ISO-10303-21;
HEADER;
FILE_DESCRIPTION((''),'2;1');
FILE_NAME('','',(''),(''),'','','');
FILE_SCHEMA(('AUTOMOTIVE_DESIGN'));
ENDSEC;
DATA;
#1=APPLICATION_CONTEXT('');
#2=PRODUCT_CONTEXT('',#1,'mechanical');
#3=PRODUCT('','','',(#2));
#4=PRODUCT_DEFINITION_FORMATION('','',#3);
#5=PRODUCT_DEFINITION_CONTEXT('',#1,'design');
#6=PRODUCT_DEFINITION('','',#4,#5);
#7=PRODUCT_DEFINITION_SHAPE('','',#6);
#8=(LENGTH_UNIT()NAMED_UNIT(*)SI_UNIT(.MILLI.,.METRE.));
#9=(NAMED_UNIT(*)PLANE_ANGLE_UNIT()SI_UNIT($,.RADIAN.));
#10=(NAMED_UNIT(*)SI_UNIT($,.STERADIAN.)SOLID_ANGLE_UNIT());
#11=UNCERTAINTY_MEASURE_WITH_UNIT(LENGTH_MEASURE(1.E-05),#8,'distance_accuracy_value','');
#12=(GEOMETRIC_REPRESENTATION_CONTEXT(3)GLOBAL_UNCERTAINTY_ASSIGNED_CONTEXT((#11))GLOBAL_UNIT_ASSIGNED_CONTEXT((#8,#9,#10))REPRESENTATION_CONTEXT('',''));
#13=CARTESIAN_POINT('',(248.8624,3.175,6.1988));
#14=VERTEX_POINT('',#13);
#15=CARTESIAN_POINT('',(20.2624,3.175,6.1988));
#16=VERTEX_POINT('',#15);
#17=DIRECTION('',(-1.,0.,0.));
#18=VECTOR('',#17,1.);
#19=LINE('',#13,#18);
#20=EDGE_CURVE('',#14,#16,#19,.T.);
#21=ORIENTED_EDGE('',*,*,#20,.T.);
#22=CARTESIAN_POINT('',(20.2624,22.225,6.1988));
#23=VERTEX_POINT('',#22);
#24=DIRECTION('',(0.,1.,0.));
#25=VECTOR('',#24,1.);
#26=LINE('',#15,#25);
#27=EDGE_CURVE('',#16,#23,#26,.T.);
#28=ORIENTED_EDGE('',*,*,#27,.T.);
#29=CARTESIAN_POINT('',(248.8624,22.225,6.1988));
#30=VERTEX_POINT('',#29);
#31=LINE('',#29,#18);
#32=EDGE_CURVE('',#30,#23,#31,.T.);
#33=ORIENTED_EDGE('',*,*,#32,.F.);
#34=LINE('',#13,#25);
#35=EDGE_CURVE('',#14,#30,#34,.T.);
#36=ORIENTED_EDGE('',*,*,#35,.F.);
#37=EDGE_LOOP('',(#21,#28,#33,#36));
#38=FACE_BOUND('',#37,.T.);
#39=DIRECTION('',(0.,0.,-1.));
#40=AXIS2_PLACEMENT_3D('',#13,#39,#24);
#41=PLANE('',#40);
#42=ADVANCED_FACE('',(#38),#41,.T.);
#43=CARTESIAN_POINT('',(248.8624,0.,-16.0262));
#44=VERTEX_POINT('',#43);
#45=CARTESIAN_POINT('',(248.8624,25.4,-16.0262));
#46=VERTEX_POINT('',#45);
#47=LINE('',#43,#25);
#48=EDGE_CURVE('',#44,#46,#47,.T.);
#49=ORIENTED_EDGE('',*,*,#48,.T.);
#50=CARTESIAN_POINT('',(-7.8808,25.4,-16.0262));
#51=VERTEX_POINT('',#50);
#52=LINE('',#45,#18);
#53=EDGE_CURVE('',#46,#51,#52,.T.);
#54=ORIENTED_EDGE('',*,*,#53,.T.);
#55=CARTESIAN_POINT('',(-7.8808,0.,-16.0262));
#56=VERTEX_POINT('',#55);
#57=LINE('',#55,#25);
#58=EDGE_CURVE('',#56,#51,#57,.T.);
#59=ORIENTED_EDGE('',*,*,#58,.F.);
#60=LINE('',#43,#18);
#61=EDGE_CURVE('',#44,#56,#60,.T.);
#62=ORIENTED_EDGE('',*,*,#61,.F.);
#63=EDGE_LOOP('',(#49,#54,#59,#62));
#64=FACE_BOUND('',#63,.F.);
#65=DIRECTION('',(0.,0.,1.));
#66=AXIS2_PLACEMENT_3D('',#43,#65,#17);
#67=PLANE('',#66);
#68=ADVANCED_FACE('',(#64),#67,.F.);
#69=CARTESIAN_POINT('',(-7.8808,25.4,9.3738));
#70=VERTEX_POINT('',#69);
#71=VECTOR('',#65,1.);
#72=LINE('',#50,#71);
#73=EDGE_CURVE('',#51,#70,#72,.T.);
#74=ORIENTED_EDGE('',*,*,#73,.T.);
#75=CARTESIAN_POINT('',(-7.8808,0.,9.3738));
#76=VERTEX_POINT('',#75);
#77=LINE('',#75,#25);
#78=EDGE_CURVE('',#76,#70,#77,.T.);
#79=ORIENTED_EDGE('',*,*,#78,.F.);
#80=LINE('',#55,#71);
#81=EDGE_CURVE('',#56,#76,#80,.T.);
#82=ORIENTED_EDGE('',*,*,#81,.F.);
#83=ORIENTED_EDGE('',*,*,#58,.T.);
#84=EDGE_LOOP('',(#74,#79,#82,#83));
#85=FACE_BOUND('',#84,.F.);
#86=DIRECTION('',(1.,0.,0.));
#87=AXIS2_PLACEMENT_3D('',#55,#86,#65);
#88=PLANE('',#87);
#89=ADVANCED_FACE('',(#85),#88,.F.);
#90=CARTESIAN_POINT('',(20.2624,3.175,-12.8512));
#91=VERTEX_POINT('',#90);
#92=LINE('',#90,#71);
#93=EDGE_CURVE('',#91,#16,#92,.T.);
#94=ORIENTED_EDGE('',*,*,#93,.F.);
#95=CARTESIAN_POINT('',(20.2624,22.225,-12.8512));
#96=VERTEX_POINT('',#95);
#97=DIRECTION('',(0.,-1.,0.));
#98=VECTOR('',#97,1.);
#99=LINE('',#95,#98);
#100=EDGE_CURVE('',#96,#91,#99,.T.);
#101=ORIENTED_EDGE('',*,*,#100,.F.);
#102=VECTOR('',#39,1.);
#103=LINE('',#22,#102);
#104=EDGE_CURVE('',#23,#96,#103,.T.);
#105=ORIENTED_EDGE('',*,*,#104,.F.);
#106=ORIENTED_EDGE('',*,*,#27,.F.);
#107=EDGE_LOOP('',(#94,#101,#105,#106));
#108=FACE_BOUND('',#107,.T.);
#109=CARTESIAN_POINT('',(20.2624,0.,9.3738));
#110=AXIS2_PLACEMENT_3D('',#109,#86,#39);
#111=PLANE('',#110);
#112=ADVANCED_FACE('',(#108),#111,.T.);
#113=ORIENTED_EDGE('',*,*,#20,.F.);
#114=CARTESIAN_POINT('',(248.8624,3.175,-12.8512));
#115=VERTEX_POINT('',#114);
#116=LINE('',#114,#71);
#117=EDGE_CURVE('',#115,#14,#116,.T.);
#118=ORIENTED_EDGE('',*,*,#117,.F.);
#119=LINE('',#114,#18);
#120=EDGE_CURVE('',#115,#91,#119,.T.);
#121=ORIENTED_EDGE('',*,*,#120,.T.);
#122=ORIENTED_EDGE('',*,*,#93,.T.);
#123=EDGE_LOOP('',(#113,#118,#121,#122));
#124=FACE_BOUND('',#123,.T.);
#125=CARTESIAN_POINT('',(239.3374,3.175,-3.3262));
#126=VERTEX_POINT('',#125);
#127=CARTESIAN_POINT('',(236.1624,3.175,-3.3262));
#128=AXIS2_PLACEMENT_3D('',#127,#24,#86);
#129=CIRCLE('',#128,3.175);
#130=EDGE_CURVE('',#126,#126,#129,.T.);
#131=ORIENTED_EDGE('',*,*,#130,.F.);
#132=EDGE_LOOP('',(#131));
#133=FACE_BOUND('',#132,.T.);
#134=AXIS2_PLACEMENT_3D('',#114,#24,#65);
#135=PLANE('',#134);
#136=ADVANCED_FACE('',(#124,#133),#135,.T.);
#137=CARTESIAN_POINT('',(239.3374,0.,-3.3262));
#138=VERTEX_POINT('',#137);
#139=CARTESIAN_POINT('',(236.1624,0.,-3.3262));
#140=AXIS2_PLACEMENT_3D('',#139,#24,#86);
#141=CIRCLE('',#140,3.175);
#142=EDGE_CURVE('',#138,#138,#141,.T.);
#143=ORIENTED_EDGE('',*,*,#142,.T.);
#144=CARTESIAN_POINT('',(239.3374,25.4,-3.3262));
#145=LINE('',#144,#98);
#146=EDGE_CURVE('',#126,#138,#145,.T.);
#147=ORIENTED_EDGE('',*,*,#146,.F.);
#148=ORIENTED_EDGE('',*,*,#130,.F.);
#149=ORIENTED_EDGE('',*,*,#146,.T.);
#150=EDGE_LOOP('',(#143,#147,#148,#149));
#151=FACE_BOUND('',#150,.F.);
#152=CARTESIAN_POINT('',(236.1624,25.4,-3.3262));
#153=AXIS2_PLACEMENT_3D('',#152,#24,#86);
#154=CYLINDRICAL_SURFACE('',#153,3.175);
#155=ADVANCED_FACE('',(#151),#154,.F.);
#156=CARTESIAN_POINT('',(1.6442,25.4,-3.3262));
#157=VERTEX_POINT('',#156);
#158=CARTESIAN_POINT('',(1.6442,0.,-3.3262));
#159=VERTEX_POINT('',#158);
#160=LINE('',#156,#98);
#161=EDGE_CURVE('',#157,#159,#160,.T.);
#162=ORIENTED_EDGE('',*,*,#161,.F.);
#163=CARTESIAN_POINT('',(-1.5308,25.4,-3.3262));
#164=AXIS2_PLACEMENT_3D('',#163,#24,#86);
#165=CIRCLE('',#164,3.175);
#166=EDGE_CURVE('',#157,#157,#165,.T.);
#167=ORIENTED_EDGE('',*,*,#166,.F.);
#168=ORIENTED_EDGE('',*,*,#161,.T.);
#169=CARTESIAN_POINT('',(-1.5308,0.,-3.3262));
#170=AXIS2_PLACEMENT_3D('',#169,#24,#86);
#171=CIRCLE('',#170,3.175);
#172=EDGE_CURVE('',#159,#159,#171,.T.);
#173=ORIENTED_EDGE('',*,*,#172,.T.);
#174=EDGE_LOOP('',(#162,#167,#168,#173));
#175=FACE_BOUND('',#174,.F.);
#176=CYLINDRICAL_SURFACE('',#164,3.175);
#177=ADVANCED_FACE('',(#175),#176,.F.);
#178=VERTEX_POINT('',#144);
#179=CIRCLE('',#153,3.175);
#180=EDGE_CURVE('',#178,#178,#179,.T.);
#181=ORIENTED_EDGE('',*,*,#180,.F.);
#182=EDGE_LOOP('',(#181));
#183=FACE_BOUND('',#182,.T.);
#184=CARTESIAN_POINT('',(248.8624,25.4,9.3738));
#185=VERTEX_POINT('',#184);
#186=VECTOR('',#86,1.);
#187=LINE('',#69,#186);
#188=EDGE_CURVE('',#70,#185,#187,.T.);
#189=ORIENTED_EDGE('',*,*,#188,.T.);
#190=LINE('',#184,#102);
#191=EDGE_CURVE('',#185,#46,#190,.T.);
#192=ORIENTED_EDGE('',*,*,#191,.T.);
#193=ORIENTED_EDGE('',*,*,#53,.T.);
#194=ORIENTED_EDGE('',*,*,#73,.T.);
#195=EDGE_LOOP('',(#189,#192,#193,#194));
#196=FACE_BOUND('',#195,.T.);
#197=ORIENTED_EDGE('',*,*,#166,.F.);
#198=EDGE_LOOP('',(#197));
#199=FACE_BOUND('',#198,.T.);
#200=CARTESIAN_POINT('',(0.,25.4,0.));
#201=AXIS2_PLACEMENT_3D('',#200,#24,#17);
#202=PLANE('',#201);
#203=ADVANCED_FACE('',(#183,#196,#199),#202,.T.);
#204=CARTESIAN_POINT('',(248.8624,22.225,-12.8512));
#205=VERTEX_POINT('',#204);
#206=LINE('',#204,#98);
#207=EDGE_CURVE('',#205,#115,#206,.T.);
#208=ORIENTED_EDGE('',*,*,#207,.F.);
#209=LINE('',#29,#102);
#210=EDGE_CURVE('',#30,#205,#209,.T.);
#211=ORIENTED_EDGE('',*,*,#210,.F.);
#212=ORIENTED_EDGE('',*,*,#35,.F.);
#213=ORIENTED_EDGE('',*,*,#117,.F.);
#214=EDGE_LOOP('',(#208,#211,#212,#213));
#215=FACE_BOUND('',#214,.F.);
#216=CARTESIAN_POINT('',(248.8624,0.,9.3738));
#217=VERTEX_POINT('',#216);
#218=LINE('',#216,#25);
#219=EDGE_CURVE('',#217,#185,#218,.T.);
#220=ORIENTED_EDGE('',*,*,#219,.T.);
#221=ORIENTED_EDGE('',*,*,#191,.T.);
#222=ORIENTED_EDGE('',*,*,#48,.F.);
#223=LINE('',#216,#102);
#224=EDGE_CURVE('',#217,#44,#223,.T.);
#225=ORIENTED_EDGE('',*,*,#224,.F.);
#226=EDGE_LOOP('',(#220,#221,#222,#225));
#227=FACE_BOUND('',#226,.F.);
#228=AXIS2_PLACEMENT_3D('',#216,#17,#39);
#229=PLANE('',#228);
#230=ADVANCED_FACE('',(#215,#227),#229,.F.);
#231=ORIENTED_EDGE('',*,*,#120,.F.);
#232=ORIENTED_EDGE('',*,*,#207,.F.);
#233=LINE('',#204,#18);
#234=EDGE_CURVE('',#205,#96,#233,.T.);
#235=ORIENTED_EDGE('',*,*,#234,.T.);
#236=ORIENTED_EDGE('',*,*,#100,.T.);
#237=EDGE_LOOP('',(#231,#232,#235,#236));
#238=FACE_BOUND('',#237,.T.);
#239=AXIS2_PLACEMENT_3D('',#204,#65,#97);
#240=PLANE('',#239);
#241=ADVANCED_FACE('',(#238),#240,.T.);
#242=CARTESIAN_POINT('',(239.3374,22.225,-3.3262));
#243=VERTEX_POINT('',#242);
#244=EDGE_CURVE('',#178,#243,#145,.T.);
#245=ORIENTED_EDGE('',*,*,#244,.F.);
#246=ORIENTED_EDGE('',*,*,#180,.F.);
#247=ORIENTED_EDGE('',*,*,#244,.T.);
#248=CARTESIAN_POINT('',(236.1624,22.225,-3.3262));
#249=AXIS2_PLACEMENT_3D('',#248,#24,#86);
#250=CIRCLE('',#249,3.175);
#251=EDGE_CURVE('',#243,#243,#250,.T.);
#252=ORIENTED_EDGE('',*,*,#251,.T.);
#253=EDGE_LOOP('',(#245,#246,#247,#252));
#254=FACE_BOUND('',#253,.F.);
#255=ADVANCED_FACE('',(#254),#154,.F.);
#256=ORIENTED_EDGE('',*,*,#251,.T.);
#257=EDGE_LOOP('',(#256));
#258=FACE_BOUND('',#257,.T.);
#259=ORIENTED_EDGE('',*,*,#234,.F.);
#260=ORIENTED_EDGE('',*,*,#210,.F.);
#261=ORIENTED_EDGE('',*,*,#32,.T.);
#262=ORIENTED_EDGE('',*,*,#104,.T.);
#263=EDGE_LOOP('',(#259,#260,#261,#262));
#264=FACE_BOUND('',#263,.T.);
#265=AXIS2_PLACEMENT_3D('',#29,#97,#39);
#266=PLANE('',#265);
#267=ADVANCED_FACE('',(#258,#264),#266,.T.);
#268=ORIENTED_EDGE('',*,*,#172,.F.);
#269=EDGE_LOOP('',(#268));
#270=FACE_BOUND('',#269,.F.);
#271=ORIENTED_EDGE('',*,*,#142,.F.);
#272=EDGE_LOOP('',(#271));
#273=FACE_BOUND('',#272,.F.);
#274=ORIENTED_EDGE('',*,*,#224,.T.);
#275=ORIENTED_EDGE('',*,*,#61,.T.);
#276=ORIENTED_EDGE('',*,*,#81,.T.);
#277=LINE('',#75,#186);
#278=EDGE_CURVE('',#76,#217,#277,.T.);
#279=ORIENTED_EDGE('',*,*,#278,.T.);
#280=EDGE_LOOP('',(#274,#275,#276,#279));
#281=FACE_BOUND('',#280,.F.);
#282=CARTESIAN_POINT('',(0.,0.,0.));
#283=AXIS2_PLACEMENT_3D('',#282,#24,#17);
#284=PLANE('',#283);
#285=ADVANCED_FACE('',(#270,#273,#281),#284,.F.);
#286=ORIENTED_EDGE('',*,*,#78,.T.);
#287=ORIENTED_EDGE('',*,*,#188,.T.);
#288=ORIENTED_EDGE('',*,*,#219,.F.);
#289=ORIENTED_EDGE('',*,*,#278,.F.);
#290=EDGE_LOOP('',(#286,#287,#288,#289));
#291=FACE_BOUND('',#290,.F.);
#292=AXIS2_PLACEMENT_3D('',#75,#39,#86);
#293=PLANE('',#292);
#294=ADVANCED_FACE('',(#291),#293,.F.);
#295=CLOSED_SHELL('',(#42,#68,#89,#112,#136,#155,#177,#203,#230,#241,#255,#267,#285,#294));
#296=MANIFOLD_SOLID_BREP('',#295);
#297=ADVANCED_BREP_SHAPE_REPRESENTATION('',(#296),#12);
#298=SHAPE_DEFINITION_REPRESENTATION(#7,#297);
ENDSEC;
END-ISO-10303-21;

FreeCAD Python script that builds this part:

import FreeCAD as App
import Part
import Sketcher
Q = App.Units.Quantity


def add_polygon(sketch, points):
    """Adds a closed chain of lines whose ends are joined by coincident constraints."""
    first, n = sketch.GeometryCount, len(points)
    for a, b in zip(points, points[1:] + points[:1]):
        sketch.addGeometry(Part.LineSegment(App.Vector(*a, 0), App.Vector(*b, 0)), False)
    for i in range(n):
        sketch.addConstraint(Sketcher.Constraint("Coincident", first + i, 2, first + (i + 1) % n, 1))

doc = App.newDocument("Part")
params = doc.addObject("Spreadsheet::Sheet", "Params")
for row, (alias, value) in enumerate([
    ("sketch1_height", "1 in"),
    ("sketch1_width", "10.108 in"),
    ("pad1_length", "1 in"),
    ("sketch2_diameter", "0.25 in"),
    ("pocket1_length", "1 in"),
    ("sketch3_width", "0.75 in"),
    ("pocket2_length", "9 in"),
], start=1):
    params.set(f"A{row}", alias)
    params.set(f"B{row}", "=" + value)
    params.setAlias(f"B{row}", alias)

body = doc.addObject("PartDesign::Body", "Body")

sketch1 = body.newObject("Sketcher::SketchObject", "Sketch")
sketch1.AttachmentSupport = (doc.getObject("XZ_Plane"), [""])
sketch1.MapMode = "FlatFace"
add_polygon(sketch1, [(-8, -16), (-8, 9), (249, 9), (249, -16)])
sketch1.addConstraint([
    Sketcher.Constraint("Vertical", 0),
    Sketcher.Constraint("Horizontal", 1),
    Sketcher.Constraint("Vertical", 2),
    Sketcher.Constraint("Horizontal", 3),
    Sketcher.Constraint("DistanceY", 0, 1, 0, 2, Q("1 in")),
    Sketcher.Constraint("DistanceX", 1, 1, 1, 2, Q("10.108 in")),
    Sketcher.Constraint("DistanceX", 0, 2, -1, 1, Q("7.8808 mm")),
    Sketcher.Constraint("DistanceY", -1, 1, 0, 2, Q("9.3738 mm")),
])
sketch1.setExpression("Constraints[8]", "Params.sketch1_height")
sketch1.setExpression("Constraints[9]", "Params.sketch1_width")
pad1 = body.newObject("PartDesign::Pad", "Pad")
pad1.Profile = sketch1
pad1.setExpression("Length", "Params.pad1_length")
pad1.Reversed = True

sketch2 = body.newObject("Sketcher::SketchObject", "Sketch001")
sketch2.AttachmentSupport = (doc.getObject("XZ_Plane"), [""])
sketch2.MapMode = "FlatFace"
sketch2.AttachmentOffset = App.Placement(App.Vector(0, 0, -1 * 25.4), App.Rotation())
sketch2.addGeometry([
    Part.Circle(App.Vector(-1.5, -3.3, 0), App.Vector(0, 0, 1), 3.2),
    Part.Circle(App.Vector(236.2, -3.3, 0), App.Vector(0, 0, 1), 3.2),
], False)
sketch2.addConstraint([
    Sketcher.Constraint("Equal", 0, 1),
    Sketcher.Constraint("Horizontal", 0, 3, 1, 3),
    Sketcher.Constraint("Diameter", 0, Q("0.25 in")),
    Sketcher.Constraint("DistanceX", 0, 3, 1, 3, Q("9.358 in")),
    Sketcher.Constraint("DistanceX", 0, 3, -1, 1, Q("1.5308 mm")),
    Sketcher.Constraint("DistanceY", 0, 3, -1, 1, Q("3.3262 mm")),
])
sketch2.setExpression("Constraints[2]", "Params.sketch2_diameter")
pocket1 = body.newObject("PartDesign::Pocket", "Pocket")
pocket1.Profile = sketch2
pocket1.setExpression("Length", "Params.pocket1_length")
pocket1.Reversed = True

sketch3 = body.newObject("Sketcher::SketchObject", "Sketch002")
sketch3.AttachmentSupport = (doc.getObject("YZ_Plane"), [""])
sketch3.MapMode = "FlatFace"
sketch3.AttachmentOffset = App.Placement(App.Vector(0, 0, 248.8624), App.Rotation())
add_polygon(sketch3, [(22, -13), (22, 6), (3, 6), (3, -13)])
sketch3.addConstraint([
    Sketcher.Constraint("Vertical", 0),
    Sketcher.Constraint("Horizontal", 1),
    Sketcher.Constraint("Vertical", 2),
    Sketcher.Constraint("Horizontal", 3),
    Sketcher.Constraint("Equal", 3, 0),
    Sketcher.Constraint("DistanceX", -1, 1, 1, 2, Q("0.125 in")),
    Sketcher.Constraint("DistanceX", 1, 2, 1, 1, Q("0.75 in")),
    Sketcher.Constraint("DistanceY", -1, 1, 0, 2, Q("6.1988 mm")),
])
sketch3.setExpression("Constraints[10]", "Params.sketch3_width")
pocket2 = body.newObject("PartDesign::Pocket", "Pocket001")
pocket2.Profile = sketch3
pocket2.setExpression("Length", "Params.pocket2_length")

doc.recompute()
